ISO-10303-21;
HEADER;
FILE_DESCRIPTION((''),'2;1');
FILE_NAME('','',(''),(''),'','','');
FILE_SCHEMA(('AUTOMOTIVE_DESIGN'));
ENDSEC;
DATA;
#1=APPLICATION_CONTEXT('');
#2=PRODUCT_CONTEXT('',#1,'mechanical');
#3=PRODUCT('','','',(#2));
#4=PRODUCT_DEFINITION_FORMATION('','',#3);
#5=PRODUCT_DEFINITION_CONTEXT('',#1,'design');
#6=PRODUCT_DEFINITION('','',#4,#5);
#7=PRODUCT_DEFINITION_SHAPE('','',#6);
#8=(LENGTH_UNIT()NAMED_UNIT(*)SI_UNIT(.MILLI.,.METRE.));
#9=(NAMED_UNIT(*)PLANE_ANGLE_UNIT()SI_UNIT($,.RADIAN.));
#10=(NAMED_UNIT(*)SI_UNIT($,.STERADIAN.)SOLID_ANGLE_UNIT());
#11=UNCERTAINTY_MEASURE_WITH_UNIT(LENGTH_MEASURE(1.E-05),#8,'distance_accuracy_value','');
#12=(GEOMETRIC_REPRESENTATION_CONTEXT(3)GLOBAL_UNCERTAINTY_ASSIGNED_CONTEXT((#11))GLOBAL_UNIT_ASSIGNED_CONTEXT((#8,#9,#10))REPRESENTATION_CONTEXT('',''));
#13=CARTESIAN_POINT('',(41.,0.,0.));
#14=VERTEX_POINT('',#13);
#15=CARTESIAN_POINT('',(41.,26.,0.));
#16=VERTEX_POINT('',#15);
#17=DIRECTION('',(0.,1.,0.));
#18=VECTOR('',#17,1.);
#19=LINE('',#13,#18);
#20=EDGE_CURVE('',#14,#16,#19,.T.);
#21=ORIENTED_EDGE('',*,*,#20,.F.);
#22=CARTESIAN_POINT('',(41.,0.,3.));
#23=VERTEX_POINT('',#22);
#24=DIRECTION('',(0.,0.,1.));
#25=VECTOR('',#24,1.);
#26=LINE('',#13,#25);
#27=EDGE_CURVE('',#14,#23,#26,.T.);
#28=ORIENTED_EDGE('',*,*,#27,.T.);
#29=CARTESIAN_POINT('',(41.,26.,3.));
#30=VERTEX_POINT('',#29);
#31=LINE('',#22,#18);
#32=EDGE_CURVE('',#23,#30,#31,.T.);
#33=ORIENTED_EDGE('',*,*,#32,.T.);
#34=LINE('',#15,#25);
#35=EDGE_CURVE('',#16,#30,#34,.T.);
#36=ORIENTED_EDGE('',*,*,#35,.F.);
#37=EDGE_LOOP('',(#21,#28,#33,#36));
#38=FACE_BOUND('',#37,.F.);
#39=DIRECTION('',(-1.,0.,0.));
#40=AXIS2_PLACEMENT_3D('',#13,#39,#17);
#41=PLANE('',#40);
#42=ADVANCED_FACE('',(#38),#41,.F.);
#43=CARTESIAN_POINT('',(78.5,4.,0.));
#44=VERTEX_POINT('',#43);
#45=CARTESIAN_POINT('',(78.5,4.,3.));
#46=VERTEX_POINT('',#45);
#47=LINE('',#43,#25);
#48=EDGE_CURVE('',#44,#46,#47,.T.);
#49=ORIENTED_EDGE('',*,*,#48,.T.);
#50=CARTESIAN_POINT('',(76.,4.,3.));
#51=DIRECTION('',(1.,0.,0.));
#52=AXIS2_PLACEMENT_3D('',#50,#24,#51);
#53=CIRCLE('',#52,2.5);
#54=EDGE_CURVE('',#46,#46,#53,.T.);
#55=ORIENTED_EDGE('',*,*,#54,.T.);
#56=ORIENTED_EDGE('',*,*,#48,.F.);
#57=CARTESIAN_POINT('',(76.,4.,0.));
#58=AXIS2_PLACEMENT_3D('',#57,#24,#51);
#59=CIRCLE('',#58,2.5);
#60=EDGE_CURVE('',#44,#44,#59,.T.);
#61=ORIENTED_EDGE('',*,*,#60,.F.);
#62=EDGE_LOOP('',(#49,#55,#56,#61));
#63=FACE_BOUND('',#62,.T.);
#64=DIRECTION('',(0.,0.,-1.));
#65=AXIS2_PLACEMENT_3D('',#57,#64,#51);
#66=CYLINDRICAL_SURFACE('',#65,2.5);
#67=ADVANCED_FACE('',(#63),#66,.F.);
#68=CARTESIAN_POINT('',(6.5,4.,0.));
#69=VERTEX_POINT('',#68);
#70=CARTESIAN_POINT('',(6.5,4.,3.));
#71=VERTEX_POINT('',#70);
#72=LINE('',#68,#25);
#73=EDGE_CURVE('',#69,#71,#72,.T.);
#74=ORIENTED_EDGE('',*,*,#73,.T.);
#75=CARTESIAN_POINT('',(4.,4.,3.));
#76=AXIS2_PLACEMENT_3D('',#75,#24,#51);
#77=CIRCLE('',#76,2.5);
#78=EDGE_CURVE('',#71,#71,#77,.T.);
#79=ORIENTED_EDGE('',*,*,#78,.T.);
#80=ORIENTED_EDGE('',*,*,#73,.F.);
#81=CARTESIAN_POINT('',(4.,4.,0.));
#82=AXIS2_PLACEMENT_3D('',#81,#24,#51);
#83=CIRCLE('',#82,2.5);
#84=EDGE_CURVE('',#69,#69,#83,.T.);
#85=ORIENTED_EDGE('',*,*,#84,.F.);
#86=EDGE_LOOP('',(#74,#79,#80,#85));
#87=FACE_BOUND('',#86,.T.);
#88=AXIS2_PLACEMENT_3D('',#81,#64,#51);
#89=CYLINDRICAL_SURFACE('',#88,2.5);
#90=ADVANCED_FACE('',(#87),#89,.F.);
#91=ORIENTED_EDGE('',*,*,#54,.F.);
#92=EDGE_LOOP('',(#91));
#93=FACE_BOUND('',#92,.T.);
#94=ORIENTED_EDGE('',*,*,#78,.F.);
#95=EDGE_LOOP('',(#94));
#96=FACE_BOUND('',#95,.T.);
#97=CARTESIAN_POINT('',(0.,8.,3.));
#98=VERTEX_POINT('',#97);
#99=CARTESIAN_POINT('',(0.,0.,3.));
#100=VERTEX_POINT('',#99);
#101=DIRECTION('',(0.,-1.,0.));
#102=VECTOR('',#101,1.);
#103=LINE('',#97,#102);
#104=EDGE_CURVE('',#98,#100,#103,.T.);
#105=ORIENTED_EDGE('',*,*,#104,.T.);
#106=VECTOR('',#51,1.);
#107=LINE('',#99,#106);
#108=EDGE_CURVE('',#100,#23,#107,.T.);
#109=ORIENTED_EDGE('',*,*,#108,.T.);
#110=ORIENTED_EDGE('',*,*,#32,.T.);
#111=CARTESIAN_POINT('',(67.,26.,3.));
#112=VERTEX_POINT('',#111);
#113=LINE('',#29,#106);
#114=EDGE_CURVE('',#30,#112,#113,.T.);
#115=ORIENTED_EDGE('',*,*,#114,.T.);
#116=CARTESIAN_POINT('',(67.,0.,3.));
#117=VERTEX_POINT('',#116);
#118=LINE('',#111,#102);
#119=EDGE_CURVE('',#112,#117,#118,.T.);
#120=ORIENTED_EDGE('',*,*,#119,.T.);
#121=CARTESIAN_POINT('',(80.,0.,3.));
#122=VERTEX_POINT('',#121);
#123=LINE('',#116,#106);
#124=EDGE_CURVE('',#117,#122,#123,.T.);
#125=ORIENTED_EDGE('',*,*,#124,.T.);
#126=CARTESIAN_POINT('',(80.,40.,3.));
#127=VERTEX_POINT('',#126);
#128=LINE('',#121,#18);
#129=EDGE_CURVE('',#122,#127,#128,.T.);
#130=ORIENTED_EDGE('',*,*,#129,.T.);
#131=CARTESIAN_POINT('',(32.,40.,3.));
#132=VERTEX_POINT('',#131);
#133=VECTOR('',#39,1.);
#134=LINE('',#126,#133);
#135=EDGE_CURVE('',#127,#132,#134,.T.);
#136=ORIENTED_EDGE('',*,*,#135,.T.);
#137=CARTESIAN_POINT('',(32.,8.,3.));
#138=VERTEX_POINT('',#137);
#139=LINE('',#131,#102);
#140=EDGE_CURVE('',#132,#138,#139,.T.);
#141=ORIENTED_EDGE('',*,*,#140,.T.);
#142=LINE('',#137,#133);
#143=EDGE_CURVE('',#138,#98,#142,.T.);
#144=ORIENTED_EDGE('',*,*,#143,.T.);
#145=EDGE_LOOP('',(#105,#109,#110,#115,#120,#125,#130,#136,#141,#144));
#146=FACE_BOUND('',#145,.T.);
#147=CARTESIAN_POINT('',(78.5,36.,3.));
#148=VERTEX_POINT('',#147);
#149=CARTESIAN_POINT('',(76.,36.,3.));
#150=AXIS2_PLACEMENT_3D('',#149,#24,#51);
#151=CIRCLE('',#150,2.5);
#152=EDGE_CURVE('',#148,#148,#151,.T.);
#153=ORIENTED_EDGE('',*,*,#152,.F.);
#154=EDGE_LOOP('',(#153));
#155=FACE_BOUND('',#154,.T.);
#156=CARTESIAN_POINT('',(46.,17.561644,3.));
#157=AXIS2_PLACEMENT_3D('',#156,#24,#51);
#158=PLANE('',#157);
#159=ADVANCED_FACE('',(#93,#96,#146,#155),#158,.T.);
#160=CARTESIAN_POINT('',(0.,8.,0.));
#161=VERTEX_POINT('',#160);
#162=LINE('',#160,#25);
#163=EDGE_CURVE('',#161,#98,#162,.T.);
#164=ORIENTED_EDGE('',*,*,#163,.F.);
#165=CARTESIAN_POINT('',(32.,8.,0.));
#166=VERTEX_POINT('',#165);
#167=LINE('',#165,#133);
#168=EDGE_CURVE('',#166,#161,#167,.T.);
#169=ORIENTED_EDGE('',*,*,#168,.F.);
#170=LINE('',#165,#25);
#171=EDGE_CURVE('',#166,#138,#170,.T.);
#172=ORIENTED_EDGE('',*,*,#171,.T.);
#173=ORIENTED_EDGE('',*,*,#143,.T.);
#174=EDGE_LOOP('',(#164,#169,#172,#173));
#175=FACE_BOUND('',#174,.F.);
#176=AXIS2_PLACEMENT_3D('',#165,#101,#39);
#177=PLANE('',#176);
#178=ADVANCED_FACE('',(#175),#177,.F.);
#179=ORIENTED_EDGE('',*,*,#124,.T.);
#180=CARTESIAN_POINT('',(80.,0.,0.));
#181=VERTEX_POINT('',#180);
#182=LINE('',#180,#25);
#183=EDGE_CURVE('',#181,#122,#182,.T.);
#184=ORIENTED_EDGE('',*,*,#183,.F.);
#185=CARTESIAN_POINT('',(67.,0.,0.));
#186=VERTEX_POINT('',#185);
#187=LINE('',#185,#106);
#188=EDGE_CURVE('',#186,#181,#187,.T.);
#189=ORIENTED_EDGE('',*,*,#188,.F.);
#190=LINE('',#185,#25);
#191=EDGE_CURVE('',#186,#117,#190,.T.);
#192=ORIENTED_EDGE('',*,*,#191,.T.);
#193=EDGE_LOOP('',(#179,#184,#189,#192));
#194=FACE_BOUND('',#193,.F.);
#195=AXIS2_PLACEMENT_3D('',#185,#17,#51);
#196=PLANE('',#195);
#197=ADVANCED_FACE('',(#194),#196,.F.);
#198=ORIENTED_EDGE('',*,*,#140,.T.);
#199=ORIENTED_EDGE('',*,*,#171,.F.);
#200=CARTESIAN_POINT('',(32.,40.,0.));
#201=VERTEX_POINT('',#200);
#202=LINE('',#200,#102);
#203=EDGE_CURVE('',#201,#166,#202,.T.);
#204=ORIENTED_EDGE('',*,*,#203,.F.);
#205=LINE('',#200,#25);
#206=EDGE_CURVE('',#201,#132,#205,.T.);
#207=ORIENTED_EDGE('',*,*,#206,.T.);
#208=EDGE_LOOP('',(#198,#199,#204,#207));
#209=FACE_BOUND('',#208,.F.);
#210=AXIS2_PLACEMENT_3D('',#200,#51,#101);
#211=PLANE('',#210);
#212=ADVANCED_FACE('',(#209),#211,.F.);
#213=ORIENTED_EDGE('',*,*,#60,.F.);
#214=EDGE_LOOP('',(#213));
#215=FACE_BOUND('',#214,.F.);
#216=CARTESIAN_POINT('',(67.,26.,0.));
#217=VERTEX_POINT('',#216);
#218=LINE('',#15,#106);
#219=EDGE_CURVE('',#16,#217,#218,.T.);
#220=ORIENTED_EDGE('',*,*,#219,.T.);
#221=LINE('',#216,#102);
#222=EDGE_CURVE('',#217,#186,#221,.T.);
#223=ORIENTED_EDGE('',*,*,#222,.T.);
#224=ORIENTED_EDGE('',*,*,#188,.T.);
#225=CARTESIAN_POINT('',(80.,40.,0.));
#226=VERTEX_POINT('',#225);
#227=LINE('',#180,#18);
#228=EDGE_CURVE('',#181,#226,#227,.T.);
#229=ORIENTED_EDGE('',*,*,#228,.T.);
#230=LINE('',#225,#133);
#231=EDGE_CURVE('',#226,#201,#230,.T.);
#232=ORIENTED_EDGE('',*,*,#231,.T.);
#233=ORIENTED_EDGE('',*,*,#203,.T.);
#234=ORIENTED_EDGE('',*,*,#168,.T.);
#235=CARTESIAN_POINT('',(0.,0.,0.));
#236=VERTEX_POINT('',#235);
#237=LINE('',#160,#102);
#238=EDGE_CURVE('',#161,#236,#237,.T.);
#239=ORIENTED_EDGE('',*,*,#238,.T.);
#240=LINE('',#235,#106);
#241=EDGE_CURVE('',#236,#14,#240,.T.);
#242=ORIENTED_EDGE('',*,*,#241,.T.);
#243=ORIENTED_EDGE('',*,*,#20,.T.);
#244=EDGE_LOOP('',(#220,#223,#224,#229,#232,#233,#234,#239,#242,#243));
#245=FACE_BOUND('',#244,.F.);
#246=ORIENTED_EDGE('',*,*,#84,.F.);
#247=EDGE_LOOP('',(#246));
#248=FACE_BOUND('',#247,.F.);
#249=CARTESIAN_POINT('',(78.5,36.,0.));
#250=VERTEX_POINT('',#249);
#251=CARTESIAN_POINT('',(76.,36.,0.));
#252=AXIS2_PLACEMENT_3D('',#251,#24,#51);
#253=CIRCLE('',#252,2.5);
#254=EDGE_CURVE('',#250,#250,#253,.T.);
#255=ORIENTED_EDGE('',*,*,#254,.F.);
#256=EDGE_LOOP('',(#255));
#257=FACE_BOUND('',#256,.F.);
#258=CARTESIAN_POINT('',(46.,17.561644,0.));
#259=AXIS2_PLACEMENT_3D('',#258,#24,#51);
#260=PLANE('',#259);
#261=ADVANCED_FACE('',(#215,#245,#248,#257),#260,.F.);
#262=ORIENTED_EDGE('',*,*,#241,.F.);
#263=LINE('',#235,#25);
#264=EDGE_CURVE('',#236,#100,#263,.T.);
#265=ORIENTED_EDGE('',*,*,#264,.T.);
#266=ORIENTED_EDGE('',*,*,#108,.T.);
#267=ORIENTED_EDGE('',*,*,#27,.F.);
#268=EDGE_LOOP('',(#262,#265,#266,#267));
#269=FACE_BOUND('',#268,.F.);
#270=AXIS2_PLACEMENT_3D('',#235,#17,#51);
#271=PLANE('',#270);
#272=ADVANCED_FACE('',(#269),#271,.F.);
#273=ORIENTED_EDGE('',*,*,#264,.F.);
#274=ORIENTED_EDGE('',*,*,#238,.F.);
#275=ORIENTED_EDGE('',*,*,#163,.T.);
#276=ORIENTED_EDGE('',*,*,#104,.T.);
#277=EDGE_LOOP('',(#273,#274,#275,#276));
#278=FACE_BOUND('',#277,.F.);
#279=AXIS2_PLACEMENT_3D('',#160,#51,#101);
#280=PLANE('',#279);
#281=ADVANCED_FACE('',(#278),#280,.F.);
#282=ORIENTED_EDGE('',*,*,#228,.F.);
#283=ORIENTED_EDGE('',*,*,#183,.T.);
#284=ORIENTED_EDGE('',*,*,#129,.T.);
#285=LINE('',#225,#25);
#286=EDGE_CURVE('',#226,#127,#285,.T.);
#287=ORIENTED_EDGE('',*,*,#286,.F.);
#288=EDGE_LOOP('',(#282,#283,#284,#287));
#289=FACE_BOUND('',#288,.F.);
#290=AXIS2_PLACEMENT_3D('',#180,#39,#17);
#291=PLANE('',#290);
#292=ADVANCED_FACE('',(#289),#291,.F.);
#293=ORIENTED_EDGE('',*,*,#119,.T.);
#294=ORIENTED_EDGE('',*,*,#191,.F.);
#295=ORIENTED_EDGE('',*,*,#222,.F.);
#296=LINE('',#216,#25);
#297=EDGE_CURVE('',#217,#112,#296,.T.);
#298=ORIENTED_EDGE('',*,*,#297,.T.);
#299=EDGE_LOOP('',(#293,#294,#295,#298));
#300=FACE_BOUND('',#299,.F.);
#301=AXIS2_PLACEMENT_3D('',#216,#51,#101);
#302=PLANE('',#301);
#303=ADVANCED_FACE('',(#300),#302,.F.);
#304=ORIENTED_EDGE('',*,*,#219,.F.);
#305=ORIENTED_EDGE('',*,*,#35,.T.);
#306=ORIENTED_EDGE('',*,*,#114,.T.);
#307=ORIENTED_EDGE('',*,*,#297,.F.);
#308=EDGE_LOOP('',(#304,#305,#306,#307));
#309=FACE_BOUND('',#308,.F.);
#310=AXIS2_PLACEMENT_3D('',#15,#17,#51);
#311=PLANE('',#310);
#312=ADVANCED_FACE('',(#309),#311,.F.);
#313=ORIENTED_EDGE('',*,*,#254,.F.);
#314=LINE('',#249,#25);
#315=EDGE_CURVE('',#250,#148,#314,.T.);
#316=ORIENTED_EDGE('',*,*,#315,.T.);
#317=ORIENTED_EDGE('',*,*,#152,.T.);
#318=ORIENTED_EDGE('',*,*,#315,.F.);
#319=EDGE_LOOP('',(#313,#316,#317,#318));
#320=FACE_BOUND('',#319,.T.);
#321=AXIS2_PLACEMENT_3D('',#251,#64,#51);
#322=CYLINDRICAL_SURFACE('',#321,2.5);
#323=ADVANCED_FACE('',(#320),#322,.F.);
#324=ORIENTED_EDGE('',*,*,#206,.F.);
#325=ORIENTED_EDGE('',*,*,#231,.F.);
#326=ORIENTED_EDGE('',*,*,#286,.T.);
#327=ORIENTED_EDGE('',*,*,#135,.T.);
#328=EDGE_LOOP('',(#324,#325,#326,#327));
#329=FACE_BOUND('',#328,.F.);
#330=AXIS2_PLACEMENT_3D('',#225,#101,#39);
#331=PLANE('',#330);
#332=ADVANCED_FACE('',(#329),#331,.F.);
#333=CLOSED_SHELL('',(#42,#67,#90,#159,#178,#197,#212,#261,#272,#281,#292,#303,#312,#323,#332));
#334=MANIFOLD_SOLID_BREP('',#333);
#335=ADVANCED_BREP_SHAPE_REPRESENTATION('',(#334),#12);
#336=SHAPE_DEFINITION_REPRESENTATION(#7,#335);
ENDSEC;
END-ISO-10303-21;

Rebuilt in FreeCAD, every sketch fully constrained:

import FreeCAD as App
import Part
import Sketcher

V = App.Vector


def add_polygon(sketch, points):
    """Adds a closed chain of lines whose ends are joined by coincident constraints."""
    first, n = sketch.GeometryCount, len(points)
    for a, b in zip(points, points[1:] + points[:1]):
        sketch.addGeometry(Part.LineSegment(App.Vector(*a, 0), App.Vector(*b, 0)), False)
    for i in range(n):
        sketch.addConstraint(Sketcher.Constraint("Coincident", first + i, 2, first + (i + 1) % n, 1))

doc = App.newDocument("Part")
params = doc.addObject("Spreadsheet::Sheet", "Params")
for row, (alias, value) in enumerate([
    ("sketch1_diameter", "5 mm"),
    ("sketch1_width", "41 mm"),
    ("sketch1_width2", "26 mm"),
    ("sketch1_width3", "13 mm"),
    ("sketch1_width4", "48 mm"),
    ("pad1_length", "3 mm"),
], start=1):
    params.set(f"A{row}", alias)
    params.set(f"B{row}", "=" + value)
    params.setAlias(f"B{row}", alias)

body = doc.addObject("PartDesign::Body", "Body")

sketch1 = body.newObject("Sketcher::SketchObject", "Sketch")
sketch1.AttachmentSupport = (doc.getObject("XY_Plane"), [""])
sketch1.MapMode = "FlatFace"
add_polygon(sketch1, [(0, 8), (0, 0), (41, 0), (41, 26), (67, 26), (67, 0), (80, 0), (80, 40), (32, 40), (32, 8)])
sketch1.addGeometry(Part.Circle(V(4, 4, 0), V(0, 0, 1), 2.5), False)
sketch1.addGeometry(Part.Circle(V(76, 4, 0), V(0, 0, 1), 2.5), False)
sketch1.addGeometry(Part.Circle(V(76, 36, 0), V(0, 0, 1), 2.5), False)
sketch1.addConstraint([
    Sketcher.Constraint("Vertical", 0),
    Sketcher.Constraint("Horizontal", 1),
    Sketcher.Constraint("Vertical", 2),
    Sketcher.Constraint("Horizontal", 3),
    Sketcher.Constraint("Vertical", 4),
    Sketcher.Constraint("Horizontal", 5),
    Sketcher.Constraint("Vertical", 6),
    Sketcher.Constraint("Horizontal", 7),
    Sketcher.Constraint("Vertical", 8),
    Sketcher.Constraint("Horizontal", 9),
    Sketcher.Constraint("Coincident", 0, 2, -1, 1),
    Sketcher.Constraint("Equal", 10, 11),
    Sketcher.Constraint("Equal", 11, 12),
    Sketcher.Constraint("PointOnObject", 4, 2, -1),
    Sketcher.Constraint("Horizontal", 10, 3, 11, 3),
    Sketcher.Constraint("Vertical", 11, 3, 12, 3),
    Sketcher.Constraint("Equal", 3, 2),
    Sketcher.Constraint("Equal", 9, 8),
    Sketcher.Constraint("Diameter", 10, 5.0),
    Sketcher.Constraint("DistanceX", 1, 1, 1, 2, 41.0),
    Sketcher.Constraint("DistanceX", 3, 1, 3, 2, 26.0),
    Sketcher.Constraint("DistanceX", 5, 1, 5, 2, 13.0),
    Sketcher.Constraint("DistanceX", 7, 2, 7, 1, 48.0),
    Sketcher.Constraint("DistanceY", 0, 2, 0, 1, 8.0),
    Sketcher.Constraint("DistanceX", -1, 1, 10, 3, 4.0),
    Sketcher.Constraint("DistanceY", -1, 1, 10, 3, 4.0),
    Sketcher.Constraint("DistanceX", -1, 1, 11, 3, 76.0),
    Sketcher.Constraint("DistanceY", -1, 1, 12, 3, 36.0),
])
sketch1.setExpression("Constraints[28]", "Params.sketch1_diameter")
sketch1.setExpression("Constraints[29]", "Params.sketch1_width")
sketch1.setExpression("Constraints[30]", "Params.sketch1_width2")
sketch1.setExpression("Constraints[31]", "Params.sketch1_width3")
sketch1.setExpression("Constraints[32]", "Params.sketch1_width4")
pad1 = body.newObject("PartDesign::Pad", "Pad")
pad1.Profile = sketch1
pad1.setExpression("Length", "Params.pad1_length")

doc.recompute()
